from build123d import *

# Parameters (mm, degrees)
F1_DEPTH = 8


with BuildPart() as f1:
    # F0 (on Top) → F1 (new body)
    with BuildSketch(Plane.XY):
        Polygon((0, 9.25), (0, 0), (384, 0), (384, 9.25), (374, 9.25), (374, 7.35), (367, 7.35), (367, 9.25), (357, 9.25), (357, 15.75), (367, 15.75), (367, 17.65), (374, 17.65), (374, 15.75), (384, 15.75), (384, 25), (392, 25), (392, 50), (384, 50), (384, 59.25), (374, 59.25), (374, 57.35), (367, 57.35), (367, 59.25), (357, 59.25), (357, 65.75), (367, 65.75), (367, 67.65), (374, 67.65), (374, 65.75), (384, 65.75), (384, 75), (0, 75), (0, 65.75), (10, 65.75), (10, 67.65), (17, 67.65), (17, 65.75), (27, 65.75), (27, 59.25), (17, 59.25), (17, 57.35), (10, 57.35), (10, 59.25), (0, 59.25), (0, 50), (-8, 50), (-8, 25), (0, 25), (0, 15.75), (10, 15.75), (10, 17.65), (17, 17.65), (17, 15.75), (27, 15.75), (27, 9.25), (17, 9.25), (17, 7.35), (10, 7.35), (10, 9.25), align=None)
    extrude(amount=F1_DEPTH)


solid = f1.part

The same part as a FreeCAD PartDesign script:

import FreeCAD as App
import Part
import Sketcher
Q = App.Units.Quantity


def add_polygon(sketch, points):
    """Adds a closed chain of lines whose ends are joined by coincident constraints."""
    first, n = sketch.GeometryCount, len(points)
    for a, b in zip(points, points[1:] + points[:1]):
        sketch.addGeometry(Part.LineSegment(App.Vector(*a, 0), App.Vector(*b, 0)), False)
    for i in range(n):
        sketch.addConstraint(Sketcher.Constraint("Coincident", first + i, 2, first + (i + 1) % n, 1))

doc = App.newDocument("Part")
body = doc.addObject("PartDesign::Body", "Body")

# Sketch on XY plane
sketch1 = body.newObject("Sketcher::SketchObject", "Sketch")
sketch1.AttachmentSupport = (doc.getObject("XY_Plane"), [""])
sketch1.MapMode = "FlatFace"
add_polygon(sketch1, [(0, 9.2), (0, 0), (384, 0), (384, 9.2), (374, 9.2), (374, 7.3), (367, 7.3), (367, 9.2), (357, 9.2), (357, 15.8), (367, 15.8), (367, 17.6), (374, 17.6), (374, 15.8), (384, 15.8), (384, 25), (392, 25), (392, 50), (384, 50), (384, 59.2), (374, 59.2), (374, 57.4), (367, 57.4), (367, 59.2), (357, 59.2), (357, 65.8), (367, 65.8), (367, 67.7), (374, 67.7), (374, 65.8), (384, 65.8), (384, 75), (0, 75), (0, 65.8), (10, 65.8), (10, 67.7), (17, 67.7), (17, 65.8), (27, 65.8), (27, 59.2), (17, 59.2), (17, 57.4), (10, 57.4), (10, 59.2), (0, 59.2), (0, 50), (-8, 50), (-8, 25), (0, 25), (0, 15.8), (10, 15.8), (10, 17.6), (17, 17.6), (17, 15.8), (27, 15.8), (27, 9.2), (17, 9.2), (17, 7.3), (10, 7.3), (10, 9.2)])  # lines 0-59
sketch1.addConstraint([
    Sketcher.Constraint("Vertical", 0),
    Sketcher.Constraint("Horizontal", 1),
    Sketcher.Constraint("Vertical", 2),
    Sketcher.Constraint("Horizontal", 3),
    Sketcher.Constraint("Vertical", 4),
    Sketcher.Constraint("Horizontal", 5),
    Sketcher.Constraint("Vertical", 6),
    Sketcher.Constraint("Horizontal", 7),
    Sketcher.Constraint("Vertical", 8),
    Sketcher.Constraint("Horizontal", 9),
    Sketcher.Constraint("Vertical", 10),
    Sketcher.Constraint("Horizontal", 11),
    Sketcher.Constraint("Vertical", 12),
    Sketcher.Constraint("Horizontal", 13),
    Sketcher.Constraint("Vertical", 14),
    Sketcher.Constraint("Horizontal", 15),
    Sketcher.Constraint("Vertical", 16),
    Sketcher.Constraint("Horizontal", 17),
    Sketcher.Constraint("Vertical", 18),
    Sketcher.Constraint("Horizontal", 19),
    Sketcher.Constraint("Vertical", 20),
    Sketcher.Constraint("Horizontal", 21),
    Sketcher.Constraint("Vertical", 22),
    Sketcher.Constraint("Horizontal", 23),
    Sketcher.Constraint("Vertical", 24),
    Sketcher.Constraint("Horizontal", 25),
    Sketcher.Constraint("Vertical", 26),
    Sketcher.Constraint("Horizontal", 27),
    Sketcher.Constraint("Vertical", 28),
    Sketcher.Constraint("Horizontal", 29),
    Sketcher.Constraint("Vertical", 30),
    Sketcher.Constraint("Horizontal", 31),
    Sketcher.Constraint("Vertical", 32),
    Sketcher.Constraint("Horizontal", 33),
    Sketcher.Constraint("Vertical", 34),
    Sketcher.Constraint("Horizontal", 35),
    Sketcher.Constraint("Vertical", 36),
    Sketcher.Constraint("Horizontal", 37),
    Sketcher.Constraint("Vertical", 38),
    Sketcher.Constraint("Horizontal", 39),
    Sketcher.Constraint("Vertical", 40),
    Sketcher.Constraint("Horizontal", 41),
    Sketcher.Constraint("Vertical", 42),
    Sketcher.Constraint("Horizontal", 43),
    Sketcher.Constraint("Vertical", 44),
    Sketcher.Constraint("Horizontal", 45),
    Sketcher.Constraint("Vertical", 46),
    Sketcher.Constraint("Horizontal", 47),
    Sketcher.Constraint("Vertical", 48),
    Sketcher.Constraint("Horizontal", 49),
    Sketcher.Constraint("Vertical", 50),
    Sketcher.Constraint("Horizontal", 51),
    Sketcher.Constraint("Vertical", 52),
    Sketcher.Constraint("Horizontal", 53),
    Sketcher.Constraint("Vertical", 54),
    Sketcher.Constraint("Horizontal", 55),
    Sketcher.Constraint("Vertical", 56),
    Sketcher.Constraint("Horizontal", 57),
    Sketcher.Constraint("Vertical", 58),
    Sketcher.Constraint("Horizontal", 59),
    Sketcher.Constraint("Coincident", 0, 2, -1, 1),
    Sketcher.Constraint("PointOnObject", 31, 2, -2),
    Sketcher.Constraint("PointOnObject", 43, 2, -2),
    Sketcher.Constraint("PointOnObject", 47, 2, -2),
    Sketcher.Constraint("Horizontal", 3, 2, 6, 2),
    Sketcher.Constraint("Horizontal", 9, 2, 12, 2),
    Sketcher.Constraint("Horizontal", 19, 2, 22, 2),
    Sketcher.Constraint("Horizontal", 25, 2, 28, 2),
    Sketcher.Constraint("Horizontal", 29, 2, 32, 2),
    Sketcher.Constraint("Horizontal", 27, 2, 34, 2),
    Sketcher.Constraint("Horizontal", 33, 2, 36, 2),
    Sketcher.Constraint("Horizontal", 23, 2, 38, 2),
    Sketcher.Constraint("Horizontal", 21, 2, 40, 2),
    Sketcher.Constraint("Horizontal", 39, 2, 42, 2),
    Sketcher.Constraint("Horizontal", 17, 2, 44, 2),
    Sketcher.Constraint("Horizontal", 15, 2, 46, 2),
    Sketcher.Constraint("Horizontal", 13, 2, 48, 2),
    Sketcher.Constraint("Horizontal", 11, 2, 50, 2),
    Sketcher.Constraint("Horizontal", 49, 2, 52, 2),
    Sketcher.Constraint("Horizontal", 7, 2, 54, 2),
    Sketcher.Constraint("Horizontal", 5, 2, 56, 2),
    Sketcher.Constraint("Horizontal", 55, 2, 58, 2),
    Sketcher.Constraint("Vertical", 6, 2, 9, 2),
    Sketcher.Constraint("Vertical", 4, 2, 11, 2),
    Sketcher.Constraint("Vertical", 2, 2, 13, 2),
    Sketcher.Constraint("Vertical", 14, 2, 17, 2),
    Sketcher.Constraint("Vertical", 12, 2, 19, 2),
    Sketcher.Constraint("Vertical", 10, 2, 21, 2),
    Sketcher.Constraint("Vertical", 8, 2, 23, 2),
    Sketcher.Constraint("Vertical", 22, 2, 25, 2),
    Sketcher.Constraint("Vertical", 20, 2, 27, 2),
    Sketcher.Constraint("Vertical", 18, 2, 29, 2),
    Sketcher.Constraint("Vertical", 36, 2, 39, 2),
    Sketcher.Constraint("Vertical", 34, 2, 41, 2),
    Sketcher.Constraint("Vertical", 42, 2, 49, 2),
    Sketcher.Constraint("Vertical", 40, 2, 51, 2),
    Sketcher.Constraint("Vertical", 38, 2, 53, 2),
    Sketcher.Constraint("Vertical", 52, 2, 55, 2),
    Sketcher.Constraint("Vertical", 50, 2, 57, 2),
    Sketcher.Constraint("Equal", 3, 7),
    Sketcher.Constraint("Equal", 29, 33),
    Sketcher.Constraint("Equal", 27, 35),
    Sketcher.Constraint("Equal", 33, 37),
    Sketcher.Constraint("Equal", 17, 45),
    Sketcher.Constraint("Equal", 6, 10),
    Sketcher.Constraint("Equal", 2, 14),
    Sketcher.Constraint("Equal", 14, 18),
    Sketcher.Constraint("Equal", 12, 20),
    Sketcher.Constraint("Equal", 8, 24),
    Sketcher.Constraint("Equal", 22, 26),
    Sketcher.Constraint("Equal", 18, 30),
    Sketcher.Constraint("DistanceX", 1, 1, 1, 2, Q("384 mm")),
    Sketcher.Constraint("DistanceX", 3, 2, 3, 1, Q("10 mm")),
    Sketcher.Constraint("DistanceX", 5, 2, 5, 1, Q("7 mm")),
    Sketcher.Constraint("DistanceX", 15, 1, 15, 2, Q("8 mm")),
    Sketcher.Constraint("DistanceY", 16, 1, 16, 2, Q("25 mm")),
    Sketcher.Constraint("DistanceY", 4, 2, 4, 1, Q("1.9 mm")),
    Sketcher.Constraint("DistanceY", 8, 1, 8, 2, Q("6.5 mm")),
    Sketcher.Constraint("DistanceY", -1, 1, 14, 2, Q("25 mm")),
])
pad1 = body.newObject("PartDesign::Pad", "Pad")
pad1.Profile = sketch1
pad1.Length = 8

doc.recompute()
